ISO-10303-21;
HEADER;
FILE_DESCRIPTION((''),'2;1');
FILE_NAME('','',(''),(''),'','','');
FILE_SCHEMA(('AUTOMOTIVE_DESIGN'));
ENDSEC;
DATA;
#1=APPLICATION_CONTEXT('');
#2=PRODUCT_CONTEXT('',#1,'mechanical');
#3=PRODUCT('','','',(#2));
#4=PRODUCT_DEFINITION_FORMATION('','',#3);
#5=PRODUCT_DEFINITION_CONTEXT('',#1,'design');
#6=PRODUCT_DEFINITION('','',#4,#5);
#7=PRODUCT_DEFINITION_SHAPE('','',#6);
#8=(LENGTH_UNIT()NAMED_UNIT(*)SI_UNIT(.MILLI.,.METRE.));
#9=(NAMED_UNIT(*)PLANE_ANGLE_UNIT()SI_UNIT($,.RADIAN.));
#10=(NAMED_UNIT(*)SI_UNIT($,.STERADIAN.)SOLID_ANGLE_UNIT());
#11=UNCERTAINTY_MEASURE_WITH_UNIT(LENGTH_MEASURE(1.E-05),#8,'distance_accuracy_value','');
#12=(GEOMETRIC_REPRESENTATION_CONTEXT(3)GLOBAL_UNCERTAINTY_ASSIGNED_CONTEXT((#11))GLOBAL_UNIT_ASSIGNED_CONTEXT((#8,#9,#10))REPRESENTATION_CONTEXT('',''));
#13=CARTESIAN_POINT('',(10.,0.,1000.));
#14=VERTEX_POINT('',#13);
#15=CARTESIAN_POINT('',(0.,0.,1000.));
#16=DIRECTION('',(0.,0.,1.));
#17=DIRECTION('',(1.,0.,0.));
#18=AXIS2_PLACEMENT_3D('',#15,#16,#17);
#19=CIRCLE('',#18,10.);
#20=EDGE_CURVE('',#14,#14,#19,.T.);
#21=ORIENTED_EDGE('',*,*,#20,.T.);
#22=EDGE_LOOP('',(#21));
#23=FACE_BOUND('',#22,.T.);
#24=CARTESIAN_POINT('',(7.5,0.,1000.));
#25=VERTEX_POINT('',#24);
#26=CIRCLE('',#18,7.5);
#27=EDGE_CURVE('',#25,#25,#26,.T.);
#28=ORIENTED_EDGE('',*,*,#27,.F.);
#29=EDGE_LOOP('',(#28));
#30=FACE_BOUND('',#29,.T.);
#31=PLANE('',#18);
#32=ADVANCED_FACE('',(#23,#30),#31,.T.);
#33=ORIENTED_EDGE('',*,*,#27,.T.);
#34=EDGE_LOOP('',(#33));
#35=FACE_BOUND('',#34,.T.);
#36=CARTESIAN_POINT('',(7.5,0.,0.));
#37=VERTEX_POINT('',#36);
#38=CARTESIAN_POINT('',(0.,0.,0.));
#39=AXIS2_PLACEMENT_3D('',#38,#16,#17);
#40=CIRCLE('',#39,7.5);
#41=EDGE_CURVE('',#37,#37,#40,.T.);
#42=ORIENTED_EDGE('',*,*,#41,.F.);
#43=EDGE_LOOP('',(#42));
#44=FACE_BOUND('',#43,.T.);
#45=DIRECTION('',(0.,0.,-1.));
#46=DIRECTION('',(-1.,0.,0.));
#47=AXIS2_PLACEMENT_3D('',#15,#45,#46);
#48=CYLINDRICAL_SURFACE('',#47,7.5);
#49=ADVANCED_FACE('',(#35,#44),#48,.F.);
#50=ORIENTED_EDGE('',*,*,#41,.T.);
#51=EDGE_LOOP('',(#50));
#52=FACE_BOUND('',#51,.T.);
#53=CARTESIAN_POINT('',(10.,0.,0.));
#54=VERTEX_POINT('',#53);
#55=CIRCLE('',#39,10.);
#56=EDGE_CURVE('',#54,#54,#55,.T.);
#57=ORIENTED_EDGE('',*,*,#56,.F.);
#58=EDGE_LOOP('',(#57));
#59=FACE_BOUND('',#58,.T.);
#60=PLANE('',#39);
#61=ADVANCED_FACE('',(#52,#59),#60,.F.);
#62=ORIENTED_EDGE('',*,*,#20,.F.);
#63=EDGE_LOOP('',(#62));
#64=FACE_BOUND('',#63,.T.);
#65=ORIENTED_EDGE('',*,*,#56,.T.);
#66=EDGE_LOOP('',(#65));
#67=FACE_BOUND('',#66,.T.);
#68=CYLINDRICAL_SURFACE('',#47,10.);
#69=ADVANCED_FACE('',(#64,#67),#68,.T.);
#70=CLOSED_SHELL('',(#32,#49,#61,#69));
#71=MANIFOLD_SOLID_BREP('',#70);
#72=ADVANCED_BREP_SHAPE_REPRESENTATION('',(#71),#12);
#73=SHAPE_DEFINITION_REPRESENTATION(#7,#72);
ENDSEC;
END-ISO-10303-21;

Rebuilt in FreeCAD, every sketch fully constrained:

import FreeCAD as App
import Part
import Sketcher

doc = App.newDocument("Part")
body = doc.addObject("PartDesign::Body", "Body")

# Sketch on XY plane
sketch1 = doc.addObject("Sketcher::SketchObject", "Sketch")
body.addObject(sketch1)
sketch1.AttachmentSupport = (doc.XY_Plane, [""])
sketch1.MapMode = "FlatFace"
sketch1.addGeometry([
    Part.Circle(App.Vector(0, 0, 0), App.Vector(0, 0, 1), 10),
    Part.Circle(App.Vector(0, 0, 0), App.Vector(0, 0, 1), 8),
], False)
sketch1.addConstraint([
    Sketcher.Constraint("Coincident", 0, 3, -1, 1),
    Sketcher.Constraint("Coincident", 1, 3, -1, 1),
    Sketcher.Constraint("Diameter", 0, 20.0),
    Sketcher.Constraint("Diameter", 1, 15.0),
])
pad1 = doc.addObject("PartDesign::Pad", "Pad")
body.addObject(pad1)
pad1.Profile = sketch1
pad1.Length = 1000

doc.recompute()
